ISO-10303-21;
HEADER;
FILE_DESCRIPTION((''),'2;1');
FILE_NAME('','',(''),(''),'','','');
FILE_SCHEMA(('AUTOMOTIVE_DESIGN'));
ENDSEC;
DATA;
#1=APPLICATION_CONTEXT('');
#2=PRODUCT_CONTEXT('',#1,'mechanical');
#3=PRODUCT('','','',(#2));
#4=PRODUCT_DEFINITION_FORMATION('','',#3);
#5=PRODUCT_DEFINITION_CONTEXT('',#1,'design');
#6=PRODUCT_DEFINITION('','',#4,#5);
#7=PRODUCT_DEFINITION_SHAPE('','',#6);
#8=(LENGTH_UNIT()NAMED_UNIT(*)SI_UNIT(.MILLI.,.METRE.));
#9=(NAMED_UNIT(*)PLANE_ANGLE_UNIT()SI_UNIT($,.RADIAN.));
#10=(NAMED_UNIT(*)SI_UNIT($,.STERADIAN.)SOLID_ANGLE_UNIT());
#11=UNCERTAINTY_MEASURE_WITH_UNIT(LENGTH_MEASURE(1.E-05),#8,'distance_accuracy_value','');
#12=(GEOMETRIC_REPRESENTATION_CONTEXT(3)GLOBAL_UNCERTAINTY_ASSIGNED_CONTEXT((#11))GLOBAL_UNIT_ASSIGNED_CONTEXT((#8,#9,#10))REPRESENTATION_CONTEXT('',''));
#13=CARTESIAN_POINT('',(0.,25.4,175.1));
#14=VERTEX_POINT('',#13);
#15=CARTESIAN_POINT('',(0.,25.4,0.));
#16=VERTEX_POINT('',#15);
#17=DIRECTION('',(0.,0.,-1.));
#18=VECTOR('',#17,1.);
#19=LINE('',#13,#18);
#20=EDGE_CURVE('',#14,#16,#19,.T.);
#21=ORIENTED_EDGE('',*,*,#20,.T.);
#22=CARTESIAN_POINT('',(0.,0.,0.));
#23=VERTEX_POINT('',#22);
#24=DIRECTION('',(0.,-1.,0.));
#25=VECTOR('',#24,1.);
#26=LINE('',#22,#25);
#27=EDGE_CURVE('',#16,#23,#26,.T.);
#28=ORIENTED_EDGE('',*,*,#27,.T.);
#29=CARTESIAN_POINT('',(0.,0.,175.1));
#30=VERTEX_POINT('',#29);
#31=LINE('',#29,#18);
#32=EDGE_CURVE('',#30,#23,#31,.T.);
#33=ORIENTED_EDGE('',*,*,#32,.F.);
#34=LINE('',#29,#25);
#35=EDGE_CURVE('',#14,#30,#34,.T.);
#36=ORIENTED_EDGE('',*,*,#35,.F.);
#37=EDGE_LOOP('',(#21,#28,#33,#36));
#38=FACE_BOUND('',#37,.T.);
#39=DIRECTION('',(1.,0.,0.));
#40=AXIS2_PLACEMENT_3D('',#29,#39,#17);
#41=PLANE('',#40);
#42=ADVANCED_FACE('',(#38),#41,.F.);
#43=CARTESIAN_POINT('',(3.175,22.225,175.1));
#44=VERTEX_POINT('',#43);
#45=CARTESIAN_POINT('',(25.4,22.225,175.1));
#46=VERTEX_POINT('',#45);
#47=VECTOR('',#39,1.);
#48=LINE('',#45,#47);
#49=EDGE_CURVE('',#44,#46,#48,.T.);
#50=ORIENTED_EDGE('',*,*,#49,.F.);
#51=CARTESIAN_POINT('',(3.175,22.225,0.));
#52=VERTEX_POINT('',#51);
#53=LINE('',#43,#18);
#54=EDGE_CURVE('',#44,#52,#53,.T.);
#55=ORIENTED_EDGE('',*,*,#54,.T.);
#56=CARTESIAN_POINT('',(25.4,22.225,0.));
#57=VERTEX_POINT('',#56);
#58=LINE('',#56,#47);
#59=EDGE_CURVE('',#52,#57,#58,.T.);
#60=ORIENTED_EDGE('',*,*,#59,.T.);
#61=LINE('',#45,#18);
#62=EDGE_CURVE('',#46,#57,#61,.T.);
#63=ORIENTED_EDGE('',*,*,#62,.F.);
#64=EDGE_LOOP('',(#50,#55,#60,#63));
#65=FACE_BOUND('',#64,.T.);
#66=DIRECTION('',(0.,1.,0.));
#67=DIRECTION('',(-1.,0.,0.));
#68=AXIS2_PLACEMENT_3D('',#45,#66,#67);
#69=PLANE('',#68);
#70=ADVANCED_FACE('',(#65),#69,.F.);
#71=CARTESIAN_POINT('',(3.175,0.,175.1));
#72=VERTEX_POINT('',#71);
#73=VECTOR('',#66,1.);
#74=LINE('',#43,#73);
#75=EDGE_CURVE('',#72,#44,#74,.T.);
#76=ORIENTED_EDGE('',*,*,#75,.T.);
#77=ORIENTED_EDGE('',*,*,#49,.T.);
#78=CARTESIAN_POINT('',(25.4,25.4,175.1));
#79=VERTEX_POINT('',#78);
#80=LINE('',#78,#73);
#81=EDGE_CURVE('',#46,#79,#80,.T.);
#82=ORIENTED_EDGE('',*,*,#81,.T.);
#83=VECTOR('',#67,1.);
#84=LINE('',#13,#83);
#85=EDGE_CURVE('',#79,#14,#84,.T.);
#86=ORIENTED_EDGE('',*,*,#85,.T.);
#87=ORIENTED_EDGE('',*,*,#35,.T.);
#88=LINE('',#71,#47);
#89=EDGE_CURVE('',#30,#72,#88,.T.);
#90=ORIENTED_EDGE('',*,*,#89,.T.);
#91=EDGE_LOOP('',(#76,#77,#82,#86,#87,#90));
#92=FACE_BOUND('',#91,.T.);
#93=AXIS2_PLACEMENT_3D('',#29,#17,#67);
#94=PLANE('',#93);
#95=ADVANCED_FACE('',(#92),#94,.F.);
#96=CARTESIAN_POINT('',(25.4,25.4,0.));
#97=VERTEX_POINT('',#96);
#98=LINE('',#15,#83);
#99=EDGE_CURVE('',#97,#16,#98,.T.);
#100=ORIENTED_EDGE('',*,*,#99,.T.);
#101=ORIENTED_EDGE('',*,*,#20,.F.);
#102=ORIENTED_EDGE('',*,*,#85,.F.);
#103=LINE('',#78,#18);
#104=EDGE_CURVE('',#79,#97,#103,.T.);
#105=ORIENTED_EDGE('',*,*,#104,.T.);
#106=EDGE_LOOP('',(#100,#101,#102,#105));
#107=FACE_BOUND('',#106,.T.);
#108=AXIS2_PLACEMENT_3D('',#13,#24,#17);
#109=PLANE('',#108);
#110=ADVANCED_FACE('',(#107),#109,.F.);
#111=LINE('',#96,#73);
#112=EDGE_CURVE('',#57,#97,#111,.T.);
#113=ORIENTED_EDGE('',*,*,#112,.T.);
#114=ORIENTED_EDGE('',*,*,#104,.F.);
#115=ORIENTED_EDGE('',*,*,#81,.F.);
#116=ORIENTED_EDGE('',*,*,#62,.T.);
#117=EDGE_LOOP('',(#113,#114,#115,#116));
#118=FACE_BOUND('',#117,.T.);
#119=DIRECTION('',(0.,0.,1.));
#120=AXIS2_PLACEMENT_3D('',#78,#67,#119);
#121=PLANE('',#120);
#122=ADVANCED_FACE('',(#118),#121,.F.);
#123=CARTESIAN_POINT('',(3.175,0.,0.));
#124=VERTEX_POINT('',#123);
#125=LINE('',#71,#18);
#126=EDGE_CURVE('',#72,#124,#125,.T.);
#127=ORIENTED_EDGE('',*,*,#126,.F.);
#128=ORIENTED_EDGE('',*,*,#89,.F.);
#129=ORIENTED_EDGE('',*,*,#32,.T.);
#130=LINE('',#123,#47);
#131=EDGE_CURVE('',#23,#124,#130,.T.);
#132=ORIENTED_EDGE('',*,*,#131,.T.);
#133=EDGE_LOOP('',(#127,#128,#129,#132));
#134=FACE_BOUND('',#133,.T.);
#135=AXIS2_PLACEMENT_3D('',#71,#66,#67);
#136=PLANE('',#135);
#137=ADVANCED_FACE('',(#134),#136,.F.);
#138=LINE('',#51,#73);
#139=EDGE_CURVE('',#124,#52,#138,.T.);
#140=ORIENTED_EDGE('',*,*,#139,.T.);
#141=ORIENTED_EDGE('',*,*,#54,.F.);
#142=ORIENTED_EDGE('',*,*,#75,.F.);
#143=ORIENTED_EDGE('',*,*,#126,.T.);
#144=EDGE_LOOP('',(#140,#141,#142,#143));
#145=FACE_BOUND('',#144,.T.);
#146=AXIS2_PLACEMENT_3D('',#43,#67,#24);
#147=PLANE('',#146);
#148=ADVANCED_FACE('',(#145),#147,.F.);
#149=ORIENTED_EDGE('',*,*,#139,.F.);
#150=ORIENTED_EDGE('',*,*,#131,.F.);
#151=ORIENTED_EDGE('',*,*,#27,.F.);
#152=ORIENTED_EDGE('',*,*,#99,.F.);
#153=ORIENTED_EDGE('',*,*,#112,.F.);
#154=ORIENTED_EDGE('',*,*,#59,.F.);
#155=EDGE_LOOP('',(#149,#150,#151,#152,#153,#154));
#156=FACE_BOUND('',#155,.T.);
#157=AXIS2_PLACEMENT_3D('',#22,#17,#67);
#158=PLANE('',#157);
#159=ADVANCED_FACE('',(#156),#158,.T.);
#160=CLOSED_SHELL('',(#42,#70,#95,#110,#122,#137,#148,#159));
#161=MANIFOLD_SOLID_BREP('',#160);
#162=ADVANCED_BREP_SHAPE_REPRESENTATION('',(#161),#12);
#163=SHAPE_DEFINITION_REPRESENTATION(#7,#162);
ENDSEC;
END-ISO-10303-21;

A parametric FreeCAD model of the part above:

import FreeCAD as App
import Part
import Sketcher
Q = App.Units.Quantity


def add_polygon(sketch, points):
    """Adds a closed chain of lines whose ends are joined by coincident constraints."""
    first, n = sketch.GeometryCount, len(points)
    for a, b in zip(points, points[1:] + points[:1]):
        sketch.addGeometry(Part.LineSegment(App.Vector(*a, 0), App.Vector(*b, 0)), False)
    for i in range(n):
        sketch.addConstraint(Sketcher.Constraint("Coincident", first + i, 2, first + (i + 1) % n, 1))

doc = App.newDocument("Part")
body = doc.addObject("PartDesign::Body", "Body")

sketch1 = doc.addObject("Sketcher::SketchObject", "Sketch")
body.addObject(sketch1)
sketch1.AttachmentSupport = (doc.XY_Plane, [""])
sketch1.MapMode = "FlatFace"
add_polygon(sketch1, [(0, 25.4), (0, 0), (3.2, 0), (3.2, 22.2), (25.4, 22.2), (25.4, 25.4)])
sketch1.addConstraint(Sketcher.Constraint("Vertical", 0))
sketch1.addConstraint(Sketcher.Constraint("Horizontal", 1))
sketch1.addConstraint(Sketcher.Constraint("Vertical", 2))
sketch1.addConstraint(Sketcher.Constraint("Horizontal", 3))
sketch1.addConstraint(Sketcher.Constraint("Vertical", 4))
sketch1.addConstraint(Sketcher.Constraint("Horizontal", 5))
sketch1.addConstraint(Sketcher.Constraint("Coincident", 0, 2, -1, 1))
sketch1.addConstraint(Sketcher.Constraint("Equal", 5, 0))
sketch1.addConstraint(Sketcher.Constraint("Equal", 3, 2))
sketch1.addConstraint(Sketcher.Constraint("DistanceX", 5, 2, 5, 1, Q("1 in")))
sketch1.addConstraint(Sketcher.Constraint("DistanceX", 1, 1, 1, 2, Q("0.125 in")))
pad1 = doc.addObject("PartDesign::Pad", "Pad")
body.addObject(pad1)
pad1.Profile = sketch1
pad1.Length = 175.1

doc.recompute()
